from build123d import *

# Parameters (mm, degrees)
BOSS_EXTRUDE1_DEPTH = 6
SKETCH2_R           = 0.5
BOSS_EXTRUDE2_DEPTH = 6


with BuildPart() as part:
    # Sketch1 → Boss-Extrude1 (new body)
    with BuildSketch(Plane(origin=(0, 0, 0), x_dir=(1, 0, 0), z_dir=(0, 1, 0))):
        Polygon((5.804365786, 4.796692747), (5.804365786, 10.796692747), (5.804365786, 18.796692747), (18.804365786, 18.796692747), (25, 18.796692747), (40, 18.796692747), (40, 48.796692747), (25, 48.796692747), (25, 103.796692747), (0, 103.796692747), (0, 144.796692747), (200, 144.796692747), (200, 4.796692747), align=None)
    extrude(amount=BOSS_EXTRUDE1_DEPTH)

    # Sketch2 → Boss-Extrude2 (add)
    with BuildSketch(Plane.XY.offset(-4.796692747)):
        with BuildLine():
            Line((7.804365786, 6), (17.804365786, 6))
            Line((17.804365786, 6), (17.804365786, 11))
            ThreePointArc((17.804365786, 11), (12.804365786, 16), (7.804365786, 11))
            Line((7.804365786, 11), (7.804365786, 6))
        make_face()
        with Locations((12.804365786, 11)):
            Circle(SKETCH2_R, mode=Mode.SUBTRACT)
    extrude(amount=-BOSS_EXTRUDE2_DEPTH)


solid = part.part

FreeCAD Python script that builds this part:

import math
import FreeCAD as App
import Part
import Sketcher
from FreeCAD import Vector
Q = App.Units.Quantity

doc = App.newDocument("Part")
body = doc.addObject("PartDesign::Body", "Body")

# Sketch on XZ plane
sketch1 = body.newObject("Sketcher::SketchObject", "Sketch")
sketch1.AttachmentSupport = (doc.getObject("XZ_Plane"), [""])
sketch1.MapMode = "FlatFace"
sketch1.addGeometry([
    Part.LineSegment(Vector(6, -19, 0), Vector(6, -5, 0)),  # 0
    Part.LineSegment(Vector(6, -5, 0), Vector(200, -5, 0)),  # 1
    Part.LineSegment(Vector(200, -5, 0), Vector(200, -145, 0)),  # 2
    Part.LineSegment(Vector(200, -145, 0), Vector(0, -145, 0)),  # 3
    Part.LineSegment(Vector(0, -145, 0), Vector(0, -104, 0)),  # 4
    Part.LineSegment(Vector(0, -104, 0), Vector(25, -104, 0)),  # 5
    Part.LineSegment(Vector(25, -104, 0), Vector(25, -49, 0)),  # 6
    Part.LineSegment(Vector(25, -49, 0), Vector(40, -49, 0)),  # 7
    Part.LineSegment(Vector(40, -49, 0), Vector(40, -19, 0)),  # 8
    Part.LineSegment(Vector(40, -19, 0), Vector(6, -19, 0)),  # 9
], False)
sketch1.addConstraint([
    Sketcher.Constraint("Coincident", 0, 2, 1, 1),
    Sketcher.Constraint("Coincident", 1, 2, 2, 1),
    Sketcher.Constraint("Coincident", 2, 2, 3, 1),
    Sketcher.Constraint("Coincident", 3, 2, 4, 1),
    Sketcher.Constraint("Coincident", 4, 2, 5, 1),
    Sketcher.Constraint("Coincident", 5, 2, 6, 1),
    Sketcher.Constraint("Coincident", 6, 2, 7, 1),
    Sketcher.Constraint("Coincident", 7, 2, 8, 1),
    Sketcher.Constraint("Coincident", 8, 2, 9, 1),
    Sketcher.Constraint("Coincident", 9, 2, 0, 1),
    Sketcher.Constraint("Vertical", 0),
    Sketcher.Constraint("Horizontal", 1),
    Sketcher.Constraint("Vertical", 2),
    Sketcher.Constraint("Horizontal", 3),
    Sketcher.Constraint("Vertical", 4),
    Sketcher.Constraint("Horizontal", 5),
    Sketcher.Constraint("Vertical", 6),
    Sketcher.Constraint("Horizontal", 7),
    Sketcher.Constraint("Vertical", 8),
    Sketcher.Constraint("Horizontal", 9),
    Sketcher.Constraint("PointOnObject", 3, 2, -2),
    Sketcher.Constraint("DistanceX", 3, 2, 3, 1, Q("200 mm")),
    Sketcher.Constraint("DistanceX", 5, 1, 5, 2, Q("25 mm")),
    Sketcher.Constraint("DistanceX", 7, 1, 7, 2, Q("15 mm")),
    Sketcher.Constraint("DistanceY", 0, 1, 0, 2, Q("14 mm")),
    Sketcher.Constraint("DistanceY", 2, 2, 2, 1, Q("140 mm")),
    Sketcher.Constraint("DistanceY", 4, 1, 4, 2, Q("41 mm")),
    Sketcher.Constraint("DistanceY", 6, 1, 6, 2, Q("55 mm")),
    Sketcher.Constraint("DistanceX", 1, 1, 1, 2, Q("194.195634 mm")),
    Sketcher.Constraint("DistanceY", 0, 2, -1, 1, Q("4.796693 mm")),
])
pad1 = body.newObject("PartDesign::Pad", "Pad")
pad1.Profile = sketch1
pad1.Length = 6
pad1.Reversed = True

# Sketch on XY plane
sketch2 = body.newObject("Sketcher::SketchObject", "Sketch001")
sketch2.AttachmentSupport = (doc.getObject("XY_Plane"), [""])
sketch2.MapMode = "FlatFace"
sketch2.AttachmentOffset = App.Placement(Vector(0, 0, -4.796693), App.Rotation())
sketch2.addGeometry([
    Part.LineSegment(Vector(7.8, 6, 0), Vector(17.8, 6, 0)),  # 0
    Part.LineSegment(Vector(17.8, 6, 0), Vector(17.8, 11, 0)),  # 1
    Part.ArcOfCircle(Part.Circle(Vector(12.8, 11, 0), Vector(0, 0, 1), 5), math.radians(0), math.radians(180)),  # 2
    Part.LineSegment(Vector(7.8, 11, 0), Vector(7.8, 6, 0)),  # 3
    Part.Circle(Vector(12.8, 11, 0), Vector(0, 0, 1), 0.5),  # 4
], False)
sketch2.addConstraint([
    Sketcher.Constraint("Coincident", 0, 2, 1, 1),
    Sketcher.Constraint("Tangent", 1, 2, 2, 1),
    Sketcher.Constraint("Tangent", 2, 2, 3, 1),
    Sketcher.Constraint("Coincident", 3, 2, 0, 1),
    Sketcher.Constraint("Horizontal", 0),
    Sketcher.Constraint("Vertical", 1),
    Sketcher.Constraint("Vertical", 3),
    Sketcher.Constraint("Coincident", 4, 3, 2, 3),
    Sketcher.Constraint("Diameter", 4, Q("1 mm")),
    Sketcher.Constraint("Radius", 2, Q("5 mm")),
    Sketcher.Constraint("DistanceY", 1, 1, 1, 2, Q("5 mm")),
    Sketcher.Constraint("DistanceY", -1, 1, 2, 3, Q("11 mm")),
    Sketcher.Constraint("DistanceX", -1, 1, 2, 3, Q("12.804366 mm")),
])
pad2 = body.newObject("PartDesign::Pad", "Pad001")
pad2.Profile = sketch2
pad2.Length = 6
pad2.Reversed = True

doc.recompute()
